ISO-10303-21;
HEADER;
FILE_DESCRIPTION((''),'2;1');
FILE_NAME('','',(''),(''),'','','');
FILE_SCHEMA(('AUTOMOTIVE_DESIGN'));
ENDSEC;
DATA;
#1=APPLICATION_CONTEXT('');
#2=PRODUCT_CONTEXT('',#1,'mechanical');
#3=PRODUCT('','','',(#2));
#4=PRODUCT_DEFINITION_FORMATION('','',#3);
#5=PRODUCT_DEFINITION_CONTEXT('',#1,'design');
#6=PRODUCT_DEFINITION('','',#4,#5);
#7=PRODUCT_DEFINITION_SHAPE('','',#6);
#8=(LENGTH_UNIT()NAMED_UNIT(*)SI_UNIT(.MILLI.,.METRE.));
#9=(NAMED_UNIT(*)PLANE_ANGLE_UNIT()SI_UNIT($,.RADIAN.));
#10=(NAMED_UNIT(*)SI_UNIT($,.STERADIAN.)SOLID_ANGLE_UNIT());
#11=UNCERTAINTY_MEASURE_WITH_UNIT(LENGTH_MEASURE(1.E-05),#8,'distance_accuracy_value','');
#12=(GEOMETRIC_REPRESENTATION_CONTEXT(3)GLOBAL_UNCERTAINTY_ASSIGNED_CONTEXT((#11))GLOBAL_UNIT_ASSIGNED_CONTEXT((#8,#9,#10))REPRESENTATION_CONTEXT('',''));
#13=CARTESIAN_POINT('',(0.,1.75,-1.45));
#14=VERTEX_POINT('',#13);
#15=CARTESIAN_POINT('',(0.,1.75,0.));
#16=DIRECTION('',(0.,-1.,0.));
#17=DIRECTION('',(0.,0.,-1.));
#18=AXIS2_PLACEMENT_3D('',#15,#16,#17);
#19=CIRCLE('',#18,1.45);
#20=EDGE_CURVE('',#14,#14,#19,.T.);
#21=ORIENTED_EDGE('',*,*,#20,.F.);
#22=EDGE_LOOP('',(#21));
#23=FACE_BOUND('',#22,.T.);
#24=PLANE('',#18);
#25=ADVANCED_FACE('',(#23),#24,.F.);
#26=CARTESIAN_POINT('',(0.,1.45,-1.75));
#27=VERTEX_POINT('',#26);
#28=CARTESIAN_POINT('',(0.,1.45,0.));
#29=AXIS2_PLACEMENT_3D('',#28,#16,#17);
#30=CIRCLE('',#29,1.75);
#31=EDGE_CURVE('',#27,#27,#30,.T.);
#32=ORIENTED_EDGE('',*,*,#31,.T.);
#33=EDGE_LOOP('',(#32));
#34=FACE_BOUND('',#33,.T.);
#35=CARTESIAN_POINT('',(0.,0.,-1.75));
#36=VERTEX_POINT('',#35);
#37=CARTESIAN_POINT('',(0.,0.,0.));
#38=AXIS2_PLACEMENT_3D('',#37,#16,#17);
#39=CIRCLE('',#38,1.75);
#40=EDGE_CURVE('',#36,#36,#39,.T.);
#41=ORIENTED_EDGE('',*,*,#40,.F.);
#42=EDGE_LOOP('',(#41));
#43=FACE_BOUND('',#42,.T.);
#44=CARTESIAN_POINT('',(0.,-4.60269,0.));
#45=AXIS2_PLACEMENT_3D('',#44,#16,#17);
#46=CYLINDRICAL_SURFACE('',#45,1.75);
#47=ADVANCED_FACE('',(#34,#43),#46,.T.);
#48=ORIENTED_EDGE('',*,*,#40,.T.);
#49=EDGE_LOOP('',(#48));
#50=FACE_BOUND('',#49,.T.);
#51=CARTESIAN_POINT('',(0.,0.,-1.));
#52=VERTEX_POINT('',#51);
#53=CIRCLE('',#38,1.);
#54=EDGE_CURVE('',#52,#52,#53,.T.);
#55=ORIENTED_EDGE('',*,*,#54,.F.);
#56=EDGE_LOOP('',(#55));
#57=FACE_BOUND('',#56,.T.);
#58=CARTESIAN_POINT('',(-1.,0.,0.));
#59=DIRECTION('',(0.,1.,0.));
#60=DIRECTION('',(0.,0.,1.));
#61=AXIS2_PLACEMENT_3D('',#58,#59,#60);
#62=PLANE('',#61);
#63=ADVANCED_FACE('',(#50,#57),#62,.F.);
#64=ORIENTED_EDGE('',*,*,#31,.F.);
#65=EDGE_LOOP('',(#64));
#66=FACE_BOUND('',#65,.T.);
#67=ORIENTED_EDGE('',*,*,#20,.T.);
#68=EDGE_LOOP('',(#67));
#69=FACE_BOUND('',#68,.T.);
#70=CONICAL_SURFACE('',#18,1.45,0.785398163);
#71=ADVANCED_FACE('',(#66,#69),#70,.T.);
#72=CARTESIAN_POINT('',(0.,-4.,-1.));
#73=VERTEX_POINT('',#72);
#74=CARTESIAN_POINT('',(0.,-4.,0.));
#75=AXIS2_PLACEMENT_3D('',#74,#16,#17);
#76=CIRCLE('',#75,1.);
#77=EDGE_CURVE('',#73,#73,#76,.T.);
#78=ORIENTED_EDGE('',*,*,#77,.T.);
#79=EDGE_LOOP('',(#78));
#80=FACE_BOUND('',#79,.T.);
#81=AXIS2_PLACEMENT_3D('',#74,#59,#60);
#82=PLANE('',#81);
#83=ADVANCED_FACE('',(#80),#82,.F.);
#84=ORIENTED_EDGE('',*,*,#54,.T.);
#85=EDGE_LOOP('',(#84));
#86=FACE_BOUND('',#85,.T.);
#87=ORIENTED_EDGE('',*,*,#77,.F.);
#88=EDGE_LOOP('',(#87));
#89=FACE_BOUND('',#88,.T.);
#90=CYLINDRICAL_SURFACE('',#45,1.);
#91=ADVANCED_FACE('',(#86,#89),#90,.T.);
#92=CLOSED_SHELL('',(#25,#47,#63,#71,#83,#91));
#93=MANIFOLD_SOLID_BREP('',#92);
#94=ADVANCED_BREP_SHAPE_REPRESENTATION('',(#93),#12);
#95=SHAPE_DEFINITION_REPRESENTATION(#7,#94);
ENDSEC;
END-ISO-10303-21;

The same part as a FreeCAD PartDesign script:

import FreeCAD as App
import Part
import Sketcher

V = App.Vector
Q = App.Units.Quantity


def add_polygon(sketch, points):
    """Adds a closed chain of lines whose ends are joined by coincident constraints."""
    first, n = sketch.GeometryCount, len(points)
    for a, b in zip(points, points[1:] + points[:1]):
        sketch.addGeometry(Part.LineSegment(App.Vector(*a, 0), App.Vector(*b, 0)), False)
    for i in range(n):
        sketch.addConstraint(Sketcher.Constraint("Coincident", first + i, 2, first + (i + 1) % n, 1))

doc = App.newDocument("Part")
body = doc.addObject("PartDesign::Body", "Body")

sketch1 = body.newObject("Sketcher::SketchObject", "Sketch")
sketch1.AttachmentSupport = (doc.getObject("XY_Plane"), [""])
sketch1.MapMode = "FlatFace"
add_polygon(sketch1, [(-1.45, 1.75), (-1.75, 1.45), (-1.75, 0), (-1, 0), (-1, -4), (0, -4), (0, 1.75)])
sketch1.addConstraint([
    Sketcher.Constraint("Vertical", 1),
    Sketcher.Constraint("Horizontal", 2),
    Sketcher.Constraint("Vertical", 3),
    Sketcher.Constraint("Horizontal", 4),
    Sketcher.Constraint("Vertical", 5),
    Sketcher.Constraint("Horizontal", 6),
    Sketcher.Constraint("PointOnObject", 1, 2, -1),
    Sketcher.Constraint("PointOnObject", 4, 2, -2),
    Sketcher.Constraint("Equal", 6, 1),
    Sketcher.Constraint("DistanceX", 4, 1, 4, 2, Q("1 mm")),
    Sketcher.Constraint("DistanceY", 3, 2, 3, 1, Q("4 mm")),
    Sketcher.Constraint("Angle", 0, Q("-135 deg")),
    Sketcher.Constraint("DistanceX", 2, 1, 2, 2, Q("0.75 mm")),
    Sketcher.Constraint("DistanceX", 6, 2, 6, 1, Q("1.45 mm")),
])
revolution = body.newObject("PartDesign::Revolution", "Revolution")
revolution.Profile = sketch1
revolution.ReferenceAxis = (sketch1, ["V_Axis"])
revolution.Angle = 360

doc.recompute()
